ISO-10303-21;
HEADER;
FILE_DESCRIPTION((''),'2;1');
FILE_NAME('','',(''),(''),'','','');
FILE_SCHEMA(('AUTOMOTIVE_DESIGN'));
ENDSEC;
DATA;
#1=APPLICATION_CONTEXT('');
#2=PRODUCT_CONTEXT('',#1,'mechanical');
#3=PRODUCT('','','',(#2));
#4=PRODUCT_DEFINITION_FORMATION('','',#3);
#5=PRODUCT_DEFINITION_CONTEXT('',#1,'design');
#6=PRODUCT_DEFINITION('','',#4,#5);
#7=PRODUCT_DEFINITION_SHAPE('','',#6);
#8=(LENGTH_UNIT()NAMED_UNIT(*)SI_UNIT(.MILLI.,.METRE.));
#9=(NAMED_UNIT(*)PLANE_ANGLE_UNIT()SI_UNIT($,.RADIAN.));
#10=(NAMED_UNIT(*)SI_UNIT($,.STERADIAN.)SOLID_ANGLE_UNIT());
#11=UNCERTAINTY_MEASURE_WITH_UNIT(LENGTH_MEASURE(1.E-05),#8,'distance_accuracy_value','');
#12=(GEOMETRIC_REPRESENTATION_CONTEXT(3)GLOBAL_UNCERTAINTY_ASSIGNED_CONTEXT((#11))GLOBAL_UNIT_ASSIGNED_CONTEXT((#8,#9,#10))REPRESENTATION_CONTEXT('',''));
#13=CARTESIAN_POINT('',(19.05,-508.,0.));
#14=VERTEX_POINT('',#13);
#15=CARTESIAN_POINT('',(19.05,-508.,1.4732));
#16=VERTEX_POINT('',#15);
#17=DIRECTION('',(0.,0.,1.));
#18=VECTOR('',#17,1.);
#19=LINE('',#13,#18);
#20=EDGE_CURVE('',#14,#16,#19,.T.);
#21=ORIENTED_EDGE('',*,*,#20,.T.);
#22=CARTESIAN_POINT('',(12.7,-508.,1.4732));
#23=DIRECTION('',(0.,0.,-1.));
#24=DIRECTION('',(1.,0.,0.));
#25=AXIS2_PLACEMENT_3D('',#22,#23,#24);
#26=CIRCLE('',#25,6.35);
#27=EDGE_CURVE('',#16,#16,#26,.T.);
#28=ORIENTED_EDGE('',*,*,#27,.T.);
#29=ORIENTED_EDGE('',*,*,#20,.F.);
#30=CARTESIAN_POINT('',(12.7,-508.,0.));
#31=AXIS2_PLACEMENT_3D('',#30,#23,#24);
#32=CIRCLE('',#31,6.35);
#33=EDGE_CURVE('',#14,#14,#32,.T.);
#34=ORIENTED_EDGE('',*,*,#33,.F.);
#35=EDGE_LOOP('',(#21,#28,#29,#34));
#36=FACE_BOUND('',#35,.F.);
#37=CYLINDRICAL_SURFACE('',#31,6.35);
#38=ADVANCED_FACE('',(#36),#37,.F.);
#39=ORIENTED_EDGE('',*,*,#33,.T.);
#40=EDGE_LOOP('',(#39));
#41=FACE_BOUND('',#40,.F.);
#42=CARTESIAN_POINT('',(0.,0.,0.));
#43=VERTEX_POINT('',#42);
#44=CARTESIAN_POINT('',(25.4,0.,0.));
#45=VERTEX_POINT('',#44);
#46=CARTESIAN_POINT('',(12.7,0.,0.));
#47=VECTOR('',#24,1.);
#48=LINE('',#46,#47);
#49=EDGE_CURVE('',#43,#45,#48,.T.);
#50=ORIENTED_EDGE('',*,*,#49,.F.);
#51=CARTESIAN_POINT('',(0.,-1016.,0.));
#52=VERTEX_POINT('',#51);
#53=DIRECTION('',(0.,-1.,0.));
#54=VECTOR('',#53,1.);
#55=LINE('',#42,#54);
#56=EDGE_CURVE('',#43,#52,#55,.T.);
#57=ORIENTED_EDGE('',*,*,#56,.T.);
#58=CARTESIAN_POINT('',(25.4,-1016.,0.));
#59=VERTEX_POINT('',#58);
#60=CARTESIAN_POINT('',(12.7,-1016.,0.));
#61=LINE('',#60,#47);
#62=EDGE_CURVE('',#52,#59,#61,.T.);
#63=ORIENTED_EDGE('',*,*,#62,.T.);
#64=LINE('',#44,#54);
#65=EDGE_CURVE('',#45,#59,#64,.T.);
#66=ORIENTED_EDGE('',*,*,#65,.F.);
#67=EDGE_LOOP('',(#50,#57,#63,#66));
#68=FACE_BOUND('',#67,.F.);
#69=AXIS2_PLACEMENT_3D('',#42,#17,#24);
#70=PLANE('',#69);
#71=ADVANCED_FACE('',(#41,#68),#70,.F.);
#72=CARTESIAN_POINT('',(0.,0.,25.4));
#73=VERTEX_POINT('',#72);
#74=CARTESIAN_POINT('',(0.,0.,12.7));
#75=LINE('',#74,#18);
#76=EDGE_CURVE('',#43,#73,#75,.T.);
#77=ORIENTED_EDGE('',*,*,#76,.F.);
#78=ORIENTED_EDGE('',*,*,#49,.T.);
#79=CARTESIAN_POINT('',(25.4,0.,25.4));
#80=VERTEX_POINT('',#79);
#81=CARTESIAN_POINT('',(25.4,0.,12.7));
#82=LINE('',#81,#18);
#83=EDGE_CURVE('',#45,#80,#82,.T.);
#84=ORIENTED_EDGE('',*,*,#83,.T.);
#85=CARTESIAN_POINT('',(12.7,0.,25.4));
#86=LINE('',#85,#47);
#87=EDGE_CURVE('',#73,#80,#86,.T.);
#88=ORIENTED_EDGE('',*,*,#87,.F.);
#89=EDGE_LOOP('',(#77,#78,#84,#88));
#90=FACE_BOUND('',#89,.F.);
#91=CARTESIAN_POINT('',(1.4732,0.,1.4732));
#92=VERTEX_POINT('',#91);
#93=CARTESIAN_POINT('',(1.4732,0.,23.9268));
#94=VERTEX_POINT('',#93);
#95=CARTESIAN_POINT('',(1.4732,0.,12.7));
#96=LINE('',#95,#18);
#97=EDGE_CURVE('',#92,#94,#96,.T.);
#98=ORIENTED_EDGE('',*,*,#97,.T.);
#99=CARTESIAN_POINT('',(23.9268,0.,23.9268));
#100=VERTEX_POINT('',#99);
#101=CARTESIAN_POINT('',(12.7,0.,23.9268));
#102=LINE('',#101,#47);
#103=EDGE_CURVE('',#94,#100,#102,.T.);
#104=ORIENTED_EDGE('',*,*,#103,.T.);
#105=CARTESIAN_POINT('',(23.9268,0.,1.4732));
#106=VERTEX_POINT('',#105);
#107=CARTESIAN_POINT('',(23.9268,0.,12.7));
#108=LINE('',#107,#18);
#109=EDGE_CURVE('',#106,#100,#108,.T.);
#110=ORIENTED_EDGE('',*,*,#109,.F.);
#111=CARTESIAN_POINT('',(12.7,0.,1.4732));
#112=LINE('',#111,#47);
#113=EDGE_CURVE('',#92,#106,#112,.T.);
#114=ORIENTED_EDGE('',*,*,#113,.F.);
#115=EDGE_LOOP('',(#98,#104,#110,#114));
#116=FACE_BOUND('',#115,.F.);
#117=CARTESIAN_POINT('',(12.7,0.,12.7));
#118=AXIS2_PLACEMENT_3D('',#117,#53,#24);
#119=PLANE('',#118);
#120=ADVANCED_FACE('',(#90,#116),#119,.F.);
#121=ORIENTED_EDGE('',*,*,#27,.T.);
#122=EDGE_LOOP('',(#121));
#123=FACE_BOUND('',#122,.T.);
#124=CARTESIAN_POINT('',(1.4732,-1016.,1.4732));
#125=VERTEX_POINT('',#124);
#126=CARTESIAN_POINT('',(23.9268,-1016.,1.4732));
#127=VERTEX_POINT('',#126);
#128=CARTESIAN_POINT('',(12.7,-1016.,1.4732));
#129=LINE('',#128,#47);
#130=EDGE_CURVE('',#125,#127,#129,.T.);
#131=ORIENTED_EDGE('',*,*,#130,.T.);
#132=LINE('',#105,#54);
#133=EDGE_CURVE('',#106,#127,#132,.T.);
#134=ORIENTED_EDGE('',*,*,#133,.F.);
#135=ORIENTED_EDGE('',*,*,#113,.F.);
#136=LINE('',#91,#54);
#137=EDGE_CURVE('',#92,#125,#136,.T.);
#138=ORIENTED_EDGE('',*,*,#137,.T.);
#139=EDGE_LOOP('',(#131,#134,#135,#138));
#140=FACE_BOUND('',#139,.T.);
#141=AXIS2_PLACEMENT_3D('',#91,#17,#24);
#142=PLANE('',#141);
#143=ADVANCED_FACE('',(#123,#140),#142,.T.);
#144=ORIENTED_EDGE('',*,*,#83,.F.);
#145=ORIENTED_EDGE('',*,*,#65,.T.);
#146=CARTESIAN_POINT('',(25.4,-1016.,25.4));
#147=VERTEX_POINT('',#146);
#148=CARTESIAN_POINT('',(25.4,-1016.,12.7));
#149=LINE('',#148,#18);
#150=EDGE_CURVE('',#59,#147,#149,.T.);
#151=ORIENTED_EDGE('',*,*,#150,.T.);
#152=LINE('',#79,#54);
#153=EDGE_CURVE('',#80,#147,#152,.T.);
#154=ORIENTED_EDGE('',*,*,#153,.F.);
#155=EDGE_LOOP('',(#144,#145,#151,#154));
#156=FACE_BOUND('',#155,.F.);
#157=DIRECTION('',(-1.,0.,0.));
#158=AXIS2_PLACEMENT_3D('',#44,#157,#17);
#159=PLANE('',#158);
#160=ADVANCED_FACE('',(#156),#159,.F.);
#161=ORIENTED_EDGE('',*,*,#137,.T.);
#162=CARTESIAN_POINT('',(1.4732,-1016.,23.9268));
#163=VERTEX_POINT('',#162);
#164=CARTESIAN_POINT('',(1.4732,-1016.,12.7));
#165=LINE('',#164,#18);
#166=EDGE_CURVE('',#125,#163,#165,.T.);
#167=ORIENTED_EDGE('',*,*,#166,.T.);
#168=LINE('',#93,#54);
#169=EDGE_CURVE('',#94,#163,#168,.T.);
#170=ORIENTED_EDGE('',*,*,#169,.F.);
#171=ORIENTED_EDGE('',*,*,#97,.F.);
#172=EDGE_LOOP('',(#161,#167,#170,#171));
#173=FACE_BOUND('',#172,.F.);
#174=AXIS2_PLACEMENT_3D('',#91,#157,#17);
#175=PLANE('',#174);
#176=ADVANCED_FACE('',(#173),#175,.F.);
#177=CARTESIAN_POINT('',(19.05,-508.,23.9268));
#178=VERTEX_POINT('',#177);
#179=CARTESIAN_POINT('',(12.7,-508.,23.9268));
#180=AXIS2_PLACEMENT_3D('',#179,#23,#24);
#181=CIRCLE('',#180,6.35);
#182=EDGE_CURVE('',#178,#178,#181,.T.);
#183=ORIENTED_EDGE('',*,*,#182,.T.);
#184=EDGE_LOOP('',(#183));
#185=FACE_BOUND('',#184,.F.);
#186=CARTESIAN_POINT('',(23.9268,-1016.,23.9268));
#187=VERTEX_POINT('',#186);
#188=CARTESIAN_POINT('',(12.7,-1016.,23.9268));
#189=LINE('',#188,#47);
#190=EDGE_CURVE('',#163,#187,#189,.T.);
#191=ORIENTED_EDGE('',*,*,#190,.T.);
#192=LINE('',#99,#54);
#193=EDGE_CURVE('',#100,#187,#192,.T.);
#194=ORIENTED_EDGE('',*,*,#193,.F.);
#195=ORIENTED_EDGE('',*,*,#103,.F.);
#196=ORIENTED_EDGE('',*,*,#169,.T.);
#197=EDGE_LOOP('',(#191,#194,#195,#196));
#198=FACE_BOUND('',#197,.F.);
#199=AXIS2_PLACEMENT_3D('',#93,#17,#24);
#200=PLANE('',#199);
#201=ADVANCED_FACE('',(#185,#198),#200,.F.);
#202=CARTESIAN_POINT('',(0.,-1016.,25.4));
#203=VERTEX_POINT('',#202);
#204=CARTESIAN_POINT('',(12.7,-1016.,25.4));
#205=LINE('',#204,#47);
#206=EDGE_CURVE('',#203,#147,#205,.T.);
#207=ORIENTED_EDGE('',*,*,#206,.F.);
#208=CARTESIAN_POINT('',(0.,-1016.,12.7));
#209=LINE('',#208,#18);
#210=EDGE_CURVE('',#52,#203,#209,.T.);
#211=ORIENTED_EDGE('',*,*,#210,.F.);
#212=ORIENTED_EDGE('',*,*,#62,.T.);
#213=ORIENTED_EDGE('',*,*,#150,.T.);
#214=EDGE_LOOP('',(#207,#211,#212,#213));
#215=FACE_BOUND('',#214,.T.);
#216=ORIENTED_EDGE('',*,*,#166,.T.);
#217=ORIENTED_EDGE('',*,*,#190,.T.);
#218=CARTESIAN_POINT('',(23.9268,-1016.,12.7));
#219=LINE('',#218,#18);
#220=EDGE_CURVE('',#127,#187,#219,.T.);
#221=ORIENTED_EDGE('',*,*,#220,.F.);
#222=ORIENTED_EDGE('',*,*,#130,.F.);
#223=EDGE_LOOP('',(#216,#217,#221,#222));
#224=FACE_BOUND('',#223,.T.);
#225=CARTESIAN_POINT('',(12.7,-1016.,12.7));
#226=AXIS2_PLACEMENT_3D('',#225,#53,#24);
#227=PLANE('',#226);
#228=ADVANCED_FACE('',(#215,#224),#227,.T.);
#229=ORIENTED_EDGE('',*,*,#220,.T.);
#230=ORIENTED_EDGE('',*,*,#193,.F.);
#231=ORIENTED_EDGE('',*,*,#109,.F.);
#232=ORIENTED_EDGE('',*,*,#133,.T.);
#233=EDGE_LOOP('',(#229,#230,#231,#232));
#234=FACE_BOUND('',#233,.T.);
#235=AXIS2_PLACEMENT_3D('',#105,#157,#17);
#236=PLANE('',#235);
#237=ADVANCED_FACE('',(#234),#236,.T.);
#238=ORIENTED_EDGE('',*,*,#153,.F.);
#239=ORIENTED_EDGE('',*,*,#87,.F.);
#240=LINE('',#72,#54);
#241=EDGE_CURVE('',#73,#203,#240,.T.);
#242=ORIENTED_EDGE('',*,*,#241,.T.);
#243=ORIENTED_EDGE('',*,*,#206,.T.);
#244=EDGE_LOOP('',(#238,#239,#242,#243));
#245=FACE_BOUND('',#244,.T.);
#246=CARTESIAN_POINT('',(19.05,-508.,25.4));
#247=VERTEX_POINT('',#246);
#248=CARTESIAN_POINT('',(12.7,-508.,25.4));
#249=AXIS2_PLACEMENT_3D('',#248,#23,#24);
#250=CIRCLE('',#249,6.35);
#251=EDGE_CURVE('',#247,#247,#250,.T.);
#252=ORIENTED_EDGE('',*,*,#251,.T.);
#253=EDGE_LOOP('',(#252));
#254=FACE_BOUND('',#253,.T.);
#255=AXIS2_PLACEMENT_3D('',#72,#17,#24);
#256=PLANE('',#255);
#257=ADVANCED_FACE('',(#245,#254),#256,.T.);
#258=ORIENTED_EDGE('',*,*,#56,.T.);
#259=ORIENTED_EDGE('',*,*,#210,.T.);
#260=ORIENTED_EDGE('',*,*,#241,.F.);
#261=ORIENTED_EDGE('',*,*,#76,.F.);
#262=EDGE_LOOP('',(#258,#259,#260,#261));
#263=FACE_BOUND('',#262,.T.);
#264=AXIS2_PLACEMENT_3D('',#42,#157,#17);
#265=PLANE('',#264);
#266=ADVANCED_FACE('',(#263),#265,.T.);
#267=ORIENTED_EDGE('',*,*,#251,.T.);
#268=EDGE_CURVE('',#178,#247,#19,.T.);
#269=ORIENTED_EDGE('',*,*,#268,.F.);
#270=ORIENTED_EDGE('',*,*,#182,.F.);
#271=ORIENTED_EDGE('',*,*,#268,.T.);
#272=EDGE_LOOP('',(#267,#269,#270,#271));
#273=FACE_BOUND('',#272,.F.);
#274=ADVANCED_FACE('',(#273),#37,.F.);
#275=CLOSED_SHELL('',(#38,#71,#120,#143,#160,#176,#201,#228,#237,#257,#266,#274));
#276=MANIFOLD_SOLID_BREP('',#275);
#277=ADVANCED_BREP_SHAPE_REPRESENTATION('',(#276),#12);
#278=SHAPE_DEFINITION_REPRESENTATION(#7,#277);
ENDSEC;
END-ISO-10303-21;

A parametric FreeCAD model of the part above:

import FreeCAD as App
import Part
import Sketcher
Q = App.Units.Quantity

doc = App.newDocument("Part")
body = doc.addObject("PartDesign::Body", "Body")

# Sketch on XZ plane
sketch1 = doc.addObject("Sketcher::SketchObject", "Sketch")
body.addObject(sketch1)
sketch1.AttachmentSupport = (doc.XZ_Plane, [""])
sketch1.MapMode = "FlatFace"
sketch1.addGeometry(Part.LineSegment(App.Vector(0, 25.4, 0), App.Vector(0, 0, 0)), False)
sketch1.addGeometry(Part.LineSegment(App.Vector(0, 0, 0), App.Vector(25.4, 0, 0)), False)
sketch1.addGeometry(Part.LineSegment(App.Vector(25.4, 0, 0), App.Vector(25.4, 25.4, 0)), False)
sketch1.addGeometry(Part.LineSegment(App.Vector(25.4, 25.4, 0), App.Vector(0, 25.4, 0)), False)
sketch1.addGeometry(Part.LineSegment(App.Vector(23.9268, 1.4732, 0), App.Vector(1.4732, 1.4732, 0)), False)
sketch1.addGeometry(Part.LineSegment(App.Vector(1.4732, 1.4732, 0), App.Vector(1.4732, 23.9268, 0)), False)
sketch1.addGeometry(Part.LineSegment(App.Vector(1.4732, 23.9268, 0), App.Vector(23.9268, 23.9268, 0)), False)
sketch1.addGeometry(Part.LineSegment(App.Vector(23.9268, 23.9268, 0), App.Vector(23.9268, 1.4732, 0)), False)
sketch1.addConstraint(Sketcher.Constraint("Coincident", 0, 2, 1, 1))
sketch1.addConstraint(Sketcher.Constraint("Coincident", 1, 2, 2, 1))
sketch1.addConstraint(Sketcher.Constraint("Coincident", 2, 2, 3, 1))
sketch1.addConstraint(Sketcher.Constraint("Coincident", 3, 2, 0, 1))
sketch1.addConstraint(Sketcher.Constraint("Coincident", 4, 2, 5, 1))
sketch1.addConstraint(Sketcher.Constraint("Coincident", 5, 2, 6, 1))
sketch1.addConstraint(Sketcher.Constraint("Coincident", 6, 2, 7, 1))
sketch1.addConstraint(Sketcher.Constraint("Coincident", 7, 2, 4, 1))
sketch1.addConstraint(Sketcher.Constraint("Vertical", 0))
sketch1.addConstraint(Sketcher.Constraint("Horizontal", 1))
sketch1.addConstraint(Sketcher.Constraint("Vertical", 2))
sketch1.addConstraint(Sketcher.Constraint("Horizontal", 3))
sketch1.addConstraint(Sketcher.Constraint("Horizontal", 4))
sketch1.addConstraint(Sketcher.Constraint("Vertical", 5))
sketch1.addConstraint(Sketcher.Constraint("Horizontal", 6))
sketch1.addConstraint(Sketcher.Constraint("Vertical", 7))
sketch1.addConstraint(Sketcher.Constraint("Coincident", 0, 2, -1, 1))
sketch1.addConstraint(Sketcher.Constraint("Equal", 3, 0))
sketch1.addConstraint(Sketcher.Constraint("Equal", 6, 5))
sketch1.addConstraint(Sketcher.Constraint("DistanceX", 1, 1, 1, 2, Q("1 in")))
sketch1.addConstraint(Sketcher.Constraint("DistanceX", 4, 2, 4, 1, Q("0.884 in")))
sketch1.addConstraint(Sketcher.Constraint("DistanceX", -1, 1, 4, 2, Q("0.058 in")))
sketch1.addConstraint(Sketcher.Constraint("DistanceY", -1, 1, 4, 2, Q("0.058 in")))
pad1 = doc.addObject("PartDesign::Pad", "Pad")
body.addObject(pad1)
pad1.Profile = sketch1
pad1.Length = Q("40 in")

# Sketch on XY plane
sketch2 = doc.addObject("Sketcher::SketchObject", "Sketch001")
body.addObject(sketch2)
sketch2.AttachmentSupport = (doc.XY_Plane, [""])
sketch2.MapMode = "FlatFace"
sketch2.addGeometry(Part.Circle(App.Vector(12.7, -508, 0), App.Vector(0, 0, 1), 6.35), False)
sketch2.addConstraint(Sketcher.Constraint("Diameter", 0, Q("0.5 in")))
sketch2.addConstraint(Sketcher.Constraint("DistanceY", 0, 3, -1, 1, Q("20 in")))
sketch2.addConstraint(Sketcher.Constraint("DistanceX", -1, 1, 0, 3, Q("0.5 in")))
pocket1 = doc.addObject("PartDesign::Pocket", "Pocket")
body.addObject(pocket1)
pocket1.Profile = sketch2
pocket1.Type = "ThroughAll"
pocket1.Reversed = True

doc.recompute()
